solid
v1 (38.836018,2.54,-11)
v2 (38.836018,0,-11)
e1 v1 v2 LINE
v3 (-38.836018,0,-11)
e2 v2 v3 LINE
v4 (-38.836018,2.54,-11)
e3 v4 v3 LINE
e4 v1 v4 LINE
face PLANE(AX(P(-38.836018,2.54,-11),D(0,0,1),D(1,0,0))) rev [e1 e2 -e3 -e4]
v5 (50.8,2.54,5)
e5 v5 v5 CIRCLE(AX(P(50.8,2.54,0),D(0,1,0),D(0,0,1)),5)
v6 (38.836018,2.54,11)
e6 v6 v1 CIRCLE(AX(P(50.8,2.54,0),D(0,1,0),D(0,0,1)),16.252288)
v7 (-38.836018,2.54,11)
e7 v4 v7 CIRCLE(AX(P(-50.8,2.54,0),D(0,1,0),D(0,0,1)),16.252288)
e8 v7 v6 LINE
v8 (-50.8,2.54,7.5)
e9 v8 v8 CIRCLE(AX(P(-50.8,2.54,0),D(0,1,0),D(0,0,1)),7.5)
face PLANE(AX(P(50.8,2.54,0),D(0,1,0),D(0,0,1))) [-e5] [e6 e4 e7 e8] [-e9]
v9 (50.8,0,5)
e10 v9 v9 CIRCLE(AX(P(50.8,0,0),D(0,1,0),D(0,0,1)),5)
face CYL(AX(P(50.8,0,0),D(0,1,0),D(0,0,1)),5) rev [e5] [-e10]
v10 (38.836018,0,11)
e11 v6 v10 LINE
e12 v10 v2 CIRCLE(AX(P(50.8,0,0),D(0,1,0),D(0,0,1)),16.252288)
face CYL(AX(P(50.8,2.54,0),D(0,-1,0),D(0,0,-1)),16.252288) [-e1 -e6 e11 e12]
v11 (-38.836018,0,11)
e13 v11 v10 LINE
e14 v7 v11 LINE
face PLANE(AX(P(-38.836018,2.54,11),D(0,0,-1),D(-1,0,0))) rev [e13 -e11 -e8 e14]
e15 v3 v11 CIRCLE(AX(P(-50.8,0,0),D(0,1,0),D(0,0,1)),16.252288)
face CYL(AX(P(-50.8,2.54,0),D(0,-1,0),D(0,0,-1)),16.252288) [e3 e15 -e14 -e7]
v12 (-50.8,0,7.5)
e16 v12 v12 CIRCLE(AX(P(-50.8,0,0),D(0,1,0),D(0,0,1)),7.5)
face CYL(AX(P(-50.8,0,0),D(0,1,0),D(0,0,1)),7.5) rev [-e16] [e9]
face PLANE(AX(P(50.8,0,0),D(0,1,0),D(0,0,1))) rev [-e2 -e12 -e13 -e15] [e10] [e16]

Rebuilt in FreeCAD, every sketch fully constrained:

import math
import FreeCAD as App
import Part
import Sketcher
from FreeCAD import Vector
Q = App.Units.Quantity

doc = App.newDocument("Part")
body = doc.addObject("PartDesign::Body", "Body")

sketch1 = body.newObject("Sketcher::SketchObject", "Sketch")
sketch1.AttachmentSupport = (doc.getObject("XZ_Plane"), [""])
sketch1.MapMode = "FlatFace"
sketch1.addGeometry([
    Part.LineSegment(Vector(38.836018, -11, 0), Vector(-38.836018, -11, 0)),
    Part.ArcOfCircle(Part.Circle(Vector(-50.8, 0, 0), Vector(0, 0, 1), 16.252288), math.radians(42.596248), math.radians(317.403752)),
    Part.LineSegment(Vector(-38.836018, 11, 0), Vector(38.836018, 11, 0)),
    Part.ArcOfCircle(Part.Circle(Vector(50.8, 0, 0), Vector(0, 0, 1), 16.252288), math.radians(-137.403752), math.radians(137.403752)),
], False)
sketch1.addConstraint([
    Sketcher.Constraint("Coincident", 0, 2, 1, 2),
    Sketcher.Constraint("Coincident", 1, 1, 2, 1),
    Sketcher.Constraint("Coincident", 2, 2, 3, 2),
    Sketcher.Constraint("Coincident", 3, 1, 0, 1),
    Sketcher.Constraint("Horizontal", 0),
    Sketcher.Constraint("Horizontal", 2),
    Sketcher.Constraint("Equal", 1, 3),
    Sketcher.Constraint("Symmetric", 1, 3, 3, 3, -1, 1),
    Sketcher.Constraint("Symmetric", 0, 2, 1, 1, -1),
    Sketcher.Constraint("DistanceY", 0, 2, -1, 1, Q("11 mm")),
    Sketcher.Constraint("DistanceX", 1, 3, -1, 1, Q("50.8 mm")),
    Sketcher.Constraint("Radius", 1, Q("16.252288 mm")),
])
pad1 = body.newObject("PartDesign::Pad", "Pad")
pad1.Profile = sketch1
pad1.Length = 2.54
pad1.Reversed = True

sketch2 = body.newObject("Sketcher::SketchObject", "Sketch001")
sketch2.AttachmentSupport = (doc.getObject("XZ_Plane"), [""])
sketch2.MapMode = "FlatFace"
sketch2.AttachmentOffset = App.Placement(Vector(0, 0, -2.54), App.Rotation())
sketch2.addGeometry([
    Part.Circle(Vector(-50.8, 0, 0), Vector(0, 0, 1), 7.5),
    Part.Circle(Vector(50.8, 0, 0), Vector(0, 0, 1), 5),
], False)
sketch2.addConstraint([
    Sketcher.Constraint("Symmetric", 0, 3, 1, 3, -1, 1),
    Sketcher.Constraint("PointOnObject", 0, 3, -1),
    Sketcher.Constraint("Diameter", 0, Q("15 mm")),
    Sketcher.Constraint("Diameter", 1, Q("10 mm")),
    Sketcher.Constraint("DistanceX", 0, 3, -1, 1, Q("50.8 mm")),
])
pocket1 = body.newObject("PartDesign::Pocket", "Pocket")
pocket1.Profile = sketch2
pocket1.Length = 2.54
pocket1.Reversed = True

doc.recompute()
